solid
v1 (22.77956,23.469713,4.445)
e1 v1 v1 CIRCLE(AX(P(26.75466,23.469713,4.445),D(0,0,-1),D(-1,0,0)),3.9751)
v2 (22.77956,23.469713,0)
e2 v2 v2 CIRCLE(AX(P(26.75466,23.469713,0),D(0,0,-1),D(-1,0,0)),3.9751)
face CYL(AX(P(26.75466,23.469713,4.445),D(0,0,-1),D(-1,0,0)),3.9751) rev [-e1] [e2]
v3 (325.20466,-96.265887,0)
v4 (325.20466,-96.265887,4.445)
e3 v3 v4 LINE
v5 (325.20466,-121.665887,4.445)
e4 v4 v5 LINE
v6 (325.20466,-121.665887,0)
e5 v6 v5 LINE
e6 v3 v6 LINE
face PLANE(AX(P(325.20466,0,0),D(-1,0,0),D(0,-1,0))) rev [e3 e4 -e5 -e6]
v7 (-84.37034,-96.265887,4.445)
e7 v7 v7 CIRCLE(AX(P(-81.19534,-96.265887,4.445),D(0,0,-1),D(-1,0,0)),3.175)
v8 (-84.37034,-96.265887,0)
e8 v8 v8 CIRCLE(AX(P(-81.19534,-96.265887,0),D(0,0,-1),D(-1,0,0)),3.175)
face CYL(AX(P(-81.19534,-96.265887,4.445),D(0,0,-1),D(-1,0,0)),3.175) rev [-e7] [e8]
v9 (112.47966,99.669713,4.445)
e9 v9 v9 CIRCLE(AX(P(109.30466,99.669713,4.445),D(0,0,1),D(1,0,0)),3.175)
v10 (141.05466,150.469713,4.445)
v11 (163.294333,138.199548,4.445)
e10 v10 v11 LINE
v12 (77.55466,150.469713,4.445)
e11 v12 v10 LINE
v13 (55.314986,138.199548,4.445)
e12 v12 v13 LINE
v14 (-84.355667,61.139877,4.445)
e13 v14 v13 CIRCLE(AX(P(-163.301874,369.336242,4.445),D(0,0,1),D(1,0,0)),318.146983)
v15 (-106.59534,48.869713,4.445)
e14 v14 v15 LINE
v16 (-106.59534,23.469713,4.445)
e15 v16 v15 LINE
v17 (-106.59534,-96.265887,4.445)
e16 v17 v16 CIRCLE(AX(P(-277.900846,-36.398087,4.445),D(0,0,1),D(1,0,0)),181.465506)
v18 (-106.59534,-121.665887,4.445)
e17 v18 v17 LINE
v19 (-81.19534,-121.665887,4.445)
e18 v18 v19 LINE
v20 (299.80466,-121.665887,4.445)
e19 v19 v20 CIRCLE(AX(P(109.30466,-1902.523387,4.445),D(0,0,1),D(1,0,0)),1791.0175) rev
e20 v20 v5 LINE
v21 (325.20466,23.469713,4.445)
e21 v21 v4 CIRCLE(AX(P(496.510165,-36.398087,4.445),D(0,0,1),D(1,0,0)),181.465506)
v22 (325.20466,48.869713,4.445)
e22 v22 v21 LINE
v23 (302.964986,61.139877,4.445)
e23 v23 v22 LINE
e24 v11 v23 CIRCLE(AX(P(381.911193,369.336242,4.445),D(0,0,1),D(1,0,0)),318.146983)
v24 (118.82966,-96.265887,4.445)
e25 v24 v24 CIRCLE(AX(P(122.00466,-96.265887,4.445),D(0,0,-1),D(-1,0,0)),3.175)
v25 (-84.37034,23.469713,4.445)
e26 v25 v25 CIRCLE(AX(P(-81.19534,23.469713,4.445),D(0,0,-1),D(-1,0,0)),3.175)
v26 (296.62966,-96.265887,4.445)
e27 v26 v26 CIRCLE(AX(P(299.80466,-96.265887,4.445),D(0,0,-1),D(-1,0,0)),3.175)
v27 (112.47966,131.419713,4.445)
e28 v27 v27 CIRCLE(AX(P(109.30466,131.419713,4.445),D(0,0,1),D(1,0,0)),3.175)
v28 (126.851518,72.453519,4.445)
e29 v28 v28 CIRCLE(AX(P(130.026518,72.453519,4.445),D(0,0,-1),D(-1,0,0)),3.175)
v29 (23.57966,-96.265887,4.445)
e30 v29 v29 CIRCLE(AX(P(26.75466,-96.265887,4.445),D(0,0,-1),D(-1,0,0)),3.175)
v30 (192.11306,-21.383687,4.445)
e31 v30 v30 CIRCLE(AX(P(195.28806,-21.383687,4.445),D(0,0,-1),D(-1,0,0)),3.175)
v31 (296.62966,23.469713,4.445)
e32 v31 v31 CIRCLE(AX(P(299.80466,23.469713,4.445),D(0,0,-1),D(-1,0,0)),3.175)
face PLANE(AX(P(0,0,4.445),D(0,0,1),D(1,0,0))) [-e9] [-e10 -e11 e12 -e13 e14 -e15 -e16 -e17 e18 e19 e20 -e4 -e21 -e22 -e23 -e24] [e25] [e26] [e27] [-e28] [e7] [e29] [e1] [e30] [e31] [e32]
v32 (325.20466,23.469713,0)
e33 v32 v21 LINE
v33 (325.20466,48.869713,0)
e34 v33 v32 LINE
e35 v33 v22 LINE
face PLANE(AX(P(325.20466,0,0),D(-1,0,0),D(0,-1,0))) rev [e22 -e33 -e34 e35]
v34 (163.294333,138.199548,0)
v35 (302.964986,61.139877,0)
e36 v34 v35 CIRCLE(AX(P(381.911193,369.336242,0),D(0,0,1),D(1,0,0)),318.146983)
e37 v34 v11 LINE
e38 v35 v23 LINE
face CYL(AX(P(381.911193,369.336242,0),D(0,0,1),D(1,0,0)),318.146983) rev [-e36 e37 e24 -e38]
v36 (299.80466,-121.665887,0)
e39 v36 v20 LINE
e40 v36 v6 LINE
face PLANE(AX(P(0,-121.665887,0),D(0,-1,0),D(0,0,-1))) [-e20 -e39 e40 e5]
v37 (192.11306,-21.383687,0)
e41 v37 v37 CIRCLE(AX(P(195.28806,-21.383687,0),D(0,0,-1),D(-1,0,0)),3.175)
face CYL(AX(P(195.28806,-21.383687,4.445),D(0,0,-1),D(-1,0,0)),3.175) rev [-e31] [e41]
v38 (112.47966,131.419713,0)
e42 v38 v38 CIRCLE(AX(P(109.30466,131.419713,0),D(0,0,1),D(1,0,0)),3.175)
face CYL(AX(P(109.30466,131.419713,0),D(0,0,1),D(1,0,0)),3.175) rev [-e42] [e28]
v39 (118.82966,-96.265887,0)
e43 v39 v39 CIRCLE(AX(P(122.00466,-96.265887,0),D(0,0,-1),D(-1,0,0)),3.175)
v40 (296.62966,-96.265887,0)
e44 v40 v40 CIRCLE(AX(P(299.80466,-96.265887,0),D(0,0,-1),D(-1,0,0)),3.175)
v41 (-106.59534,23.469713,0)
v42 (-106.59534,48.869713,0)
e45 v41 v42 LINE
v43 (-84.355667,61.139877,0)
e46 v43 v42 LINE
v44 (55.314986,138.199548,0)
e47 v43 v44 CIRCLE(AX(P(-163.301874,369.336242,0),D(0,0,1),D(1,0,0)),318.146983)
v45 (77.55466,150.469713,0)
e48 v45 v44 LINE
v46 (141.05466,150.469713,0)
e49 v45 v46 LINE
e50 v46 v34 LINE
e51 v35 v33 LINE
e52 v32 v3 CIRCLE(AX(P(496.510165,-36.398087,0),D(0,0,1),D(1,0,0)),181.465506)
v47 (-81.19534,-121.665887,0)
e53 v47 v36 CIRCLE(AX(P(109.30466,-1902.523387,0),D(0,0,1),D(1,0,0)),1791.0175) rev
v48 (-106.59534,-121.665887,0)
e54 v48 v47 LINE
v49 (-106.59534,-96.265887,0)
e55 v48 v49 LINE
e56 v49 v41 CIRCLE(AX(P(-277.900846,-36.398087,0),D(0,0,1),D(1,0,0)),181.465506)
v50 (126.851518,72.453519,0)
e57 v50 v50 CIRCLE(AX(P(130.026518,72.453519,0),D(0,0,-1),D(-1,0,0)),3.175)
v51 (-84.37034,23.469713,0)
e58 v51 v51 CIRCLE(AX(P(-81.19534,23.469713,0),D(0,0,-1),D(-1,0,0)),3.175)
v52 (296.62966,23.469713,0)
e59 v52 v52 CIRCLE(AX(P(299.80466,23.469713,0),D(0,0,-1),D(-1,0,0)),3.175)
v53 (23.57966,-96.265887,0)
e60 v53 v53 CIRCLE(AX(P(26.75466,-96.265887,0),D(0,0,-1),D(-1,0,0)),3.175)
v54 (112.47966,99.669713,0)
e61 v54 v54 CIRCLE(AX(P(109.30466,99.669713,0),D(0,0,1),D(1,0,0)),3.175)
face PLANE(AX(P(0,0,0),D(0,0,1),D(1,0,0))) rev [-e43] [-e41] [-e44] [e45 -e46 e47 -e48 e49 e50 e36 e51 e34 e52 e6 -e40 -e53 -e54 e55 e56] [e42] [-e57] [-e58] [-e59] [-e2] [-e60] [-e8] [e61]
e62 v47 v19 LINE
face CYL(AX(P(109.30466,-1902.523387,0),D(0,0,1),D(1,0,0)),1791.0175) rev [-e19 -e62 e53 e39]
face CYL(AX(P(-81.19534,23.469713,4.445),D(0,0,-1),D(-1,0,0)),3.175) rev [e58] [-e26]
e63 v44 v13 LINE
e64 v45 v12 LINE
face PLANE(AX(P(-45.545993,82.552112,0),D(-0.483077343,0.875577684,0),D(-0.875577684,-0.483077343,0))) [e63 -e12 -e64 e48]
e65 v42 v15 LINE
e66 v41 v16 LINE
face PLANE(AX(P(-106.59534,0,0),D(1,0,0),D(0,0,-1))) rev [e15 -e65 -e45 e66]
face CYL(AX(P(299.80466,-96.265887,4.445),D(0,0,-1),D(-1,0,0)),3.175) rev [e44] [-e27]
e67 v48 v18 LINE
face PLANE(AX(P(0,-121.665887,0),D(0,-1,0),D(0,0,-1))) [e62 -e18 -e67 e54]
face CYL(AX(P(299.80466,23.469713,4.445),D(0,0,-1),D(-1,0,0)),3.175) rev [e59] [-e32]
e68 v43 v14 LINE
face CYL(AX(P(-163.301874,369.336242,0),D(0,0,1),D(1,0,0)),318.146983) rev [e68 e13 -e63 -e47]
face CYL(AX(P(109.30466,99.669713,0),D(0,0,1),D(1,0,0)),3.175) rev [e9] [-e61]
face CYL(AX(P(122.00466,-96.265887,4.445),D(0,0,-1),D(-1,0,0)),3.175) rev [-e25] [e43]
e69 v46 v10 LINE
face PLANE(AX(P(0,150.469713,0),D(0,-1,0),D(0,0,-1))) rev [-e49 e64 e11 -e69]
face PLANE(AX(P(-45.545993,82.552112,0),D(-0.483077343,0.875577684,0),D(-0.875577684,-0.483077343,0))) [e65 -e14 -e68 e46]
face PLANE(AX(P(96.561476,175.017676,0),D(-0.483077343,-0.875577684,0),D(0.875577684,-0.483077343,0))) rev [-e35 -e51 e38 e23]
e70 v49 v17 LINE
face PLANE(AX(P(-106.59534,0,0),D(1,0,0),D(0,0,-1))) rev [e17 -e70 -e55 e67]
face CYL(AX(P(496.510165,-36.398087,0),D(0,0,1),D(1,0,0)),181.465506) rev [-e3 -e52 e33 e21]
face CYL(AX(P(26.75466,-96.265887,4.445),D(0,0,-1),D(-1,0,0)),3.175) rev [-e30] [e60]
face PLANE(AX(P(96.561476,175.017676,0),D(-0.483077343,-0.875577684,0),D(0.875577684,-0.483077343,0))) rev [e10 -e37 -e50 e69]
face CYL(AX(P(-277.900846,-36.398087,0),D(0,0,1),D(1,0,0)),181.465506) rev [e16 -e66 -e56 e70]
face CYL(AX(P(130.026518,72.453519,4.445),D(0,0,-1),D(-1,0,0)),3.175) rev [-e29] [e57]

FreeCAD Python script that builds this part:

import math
import FreeCAD as App
import Part
import Sketcher

V = App.Vector
Q = App.Units.Quantity


def add_polygon(sketch, points):
    """Adds a closed chain of lines whose ends are joined by coincident constraints."""
    first, n = sketch.GeometryCount, len(points)
    for a, b in zip(points, points[1:] + points[:1]):
        sketch.addGeometry(Part.LineSegment(App.Vector(*a, 0), App.Vector(*b, 0)), False)
    for i in range(n):
        sketch.addConstraint(Sketcher.Constraint("Coincident", first + i, 2, first + (i + 1) % n, 1))

doc = App.newDocument("Part")
body = doc.addObject("PartDesign::Body", "Body")

# Sketch on XY plane
sketch1 = doc.addObject("Sketcher::SketchObject", "Sketch")
body.addObject(sketch1)
sketch1.AttachmentSupport = (doc.XY_Plane, [""])
sketch1.MapMode = "FlatFace"
add_polygon(sketch1, [(-233, 316), (-233, -319), (402, -319), (402, 316)])  # lines 0-3
sketch1.addConstraint(Sketcher.Constraint("Vertical", 0))
sketch1.addConstraint(Sketcher.Constraint("Horizontal", 1))
sketch1.addConstraint(Sketcher.Constraint("Vertical", 2))
sketch1.addConstraint(Sketcher.Constraint("Horizontal", 3))
sketch1.addConstraint(Sketcher.Constraint("Equal", 3, 0))
sketch1.addConstraint(Sketcher.Constraint("DistanceX", 1, 1, 1, 2, Q("25 in")))
sketch1.addConstraint(Sketcher.Constraint("DistanceX", 0, 2, -1, 1, Q("233.118252 mm")))
sketch1.addConstraint(Sketcher.Constraint("DistanceY", 0, 2, -1, 1, Q("319.471086 mm")))
pad1 = doc.addObject("PartDesign::Pad", "Pad")
body.addObject(pad1)
pad1.Profile = sketch1
pad1.Length = Q("0.175 in")

# Sketch on XY plane
sketch2 = doc.addObject("Sketcher::SketchObject", "Sketch001")
body.addObject(sketch2)
sketch2.AttachmentSupport = (doc.XY_Plane, [""])
sketch2.MapMode = "FlatFace"
sketch2.addGeometry(Part.Circle(V(130, 72.5, 0), V(0, 0, 1), 3.2), False)
sketch2.addGeometry(Part.Circle(V(195.3, -21.4, 0), V(0, 0, 1), 3.2), False)
sketch2.addGeometry(Part.Circle(V(122, -96.3, 0), V(0, 0, 1), 3.2), False)
sketch2.addGeometry(Part.Circle(V(26.8, -96.3, 0), V(0, 0, 1), 3.2), False)
sketch2.addGeometry(Part.Circle(V(26.8, 23.5, 0), V(0, 0, 1), 4), False)
sketch2.addGeometry(Part.Circle(V(-81.2, -96.3, 0), V(0, 0, 1), 3.2), False)
sketch2.addGeometry(Part.Circle(V(299.8, -96.3, 0), V(0, 0, 1), 3.2), False)
sketch2.addGeometry(Part.Circle(V(-81.2, 23.5, 0), V(0, 0, 1), 3.2), False)
sketch2.addGeometry(Part.Circle(V(299.8, 23.5, 0), V(0, 0, 1), 3.2), False)
sketch2.addConstraint(Sketcher.Constraint("Equal", 0, 1))
sketch2.addConstraint(Sketcher.Constraint("Equal", 1, 2))
sketch2.addConstraint(Sketcher.Constraint("Equal", 2, 3))
sketch2.addConstraint(Sketcher.Constraint("Equal", 3, 5))
sketch2.addConstraint(Sketcher.Constraint("Equal", 5, 6))
sketch2.addConstraint(Sketcher.Constraint("Equal", 6, 7))
sketch2.addConstraint(Sketcher.Constraint("Equal", 7, 8))
sketch2.addConstraint(Sketcher.Constraint("Horizontal", 2, 3, 3, 3))
sketch2.addConstraint(Sketcher.Constraint("Horizontal", 3, 3, 5, 3))
sketch2.addConstraint(Sketcher.Constraint("Horizontal", 5, 3, 6, 3))
sketch2.addConstraint(Sketcher.Constraint("Horizontal", 4, 3, 7, 3))
sketch2.addConstraint(Sketcher.Constraint("Horizontal", 7, 3, 8, 3))
sketch2.addConstraint(Sketcher.Constraint("Vertical", 3, 3, 4, 3))
sketch2.addConstraint(Sketcher.Constraint("Vertical", 5, 3, 7, 3))
sketch2.addConstraint(Sketcher.Constraint("Vertical", 6, 3, 8, 3))
sketch2.addConstraint(Sketcher.Constraint("Diameter", 0, Q("0.25 in")))
sketch2.addConstraint(Sketcher.Constraint("Diameter", 4, Q("0.313 in")))
sketch2.addConstraint(Sketcher.Constraint("DistanceX", 5, 3, 2, 3, Q("8 in")))
sketch2.addConstraint(Sketcher.Constraint("DistanceX", 2, 3, 6, 3, Q("7 in")))
sketch2.addConstraint(Sketcher.Constraint("DistanceX", 3, 3, 2, 3, Q("3.75 in")))
sketch2.addConstraint(Sketcher.Constraint("DistanceY", 3, 3, 4, 3, Q("4.714 in")))
sketch2.addConstraint(Sketcher.Constraint("DistanceX", 2, 3, 1, 3, Q("73.2834 mm")))
sketch2.addConstraint(Sketcher.Constraint("DistanceY", 2, 3, 1, 3, Q("74.8822 mm")))
sketch2.addConstraint(Sketcher.Constraint("DistanceX", -1, 1, 0, 3, Q("130.026518 mm")))
sketch2.addConstraint(Sketcher.Constraint("DistanceY", -1, 1, 0, 3, Q("72.453519 mm")))
sketch2.addConstraint(Sketcher.Constraint("DistanceX", -1, 1, 1, 3, Q("195.28806 mm")))
sketch2.addConstraint(Sketcher.Constraint("DistanceY", 1, 3, -1, 1, Q("21.383687 mm")))
pocket1 = doc.addObject("PartDesign::Pocket", "Pocket")
body.addObject(pocket1)
pocket1.Profile = sketch2
pocket1.Type = "ThroughAll"
pocket1.Reversed = True

# Sketch on XY plane
sketch3 = doc.addObject("Sketcher::SketchObject", "Sketch002")
body.addObject(sketch3)
sketch3.AttachmentSupport = (doc.XY_Plane, [""])
sketch3.MapMode = "FlatFace"
sketch3.AttachmentOffset = App.Placement(V(0, 0, 0.175 * 25.4), App.Rotation())
add_polygon(sketch3, [(-233, 316), (-233, -319), (402, -319), (402, 316)])  # lines 0-3
add_polygon(sketch3, [(325, -122), (-107, -122), (-107, 49), (78, 150), (141, 150), (325, 49)])  # lines 4-9
sketch3.addConstraint(Sketcher.Constraint("Vertical", 0))
sketch3.addConstraint(Sketcher.Constraint("Horizontal", 1))
sketch3.addConstraint(Sketcher.Constraint("Vertical", 2))
sketch3.addConstraint(Sketcher.Constraint("Horizontal", 3))
sketch3.addConstraint(Sketcher.Constraint("Horizontal", 4))
sketch3.addConstraint(Sketcher.Constraint("Vertical", 5))
sketch3.addConstraint(Sketcher.Constraint("Horizontal", 7))
sketch3.addConstraint(Sketcher.Constraint("Vertical", 9))
sketch3.addConstraint(Sketcher.Constraint("Horizontal", 5, 2, 8, 2))
sketch3.addConstraint(Sketcher.Constraint("Equal", 3, 0))
sketch3.addConstraint(Sketcher.Constraint("Equal", 6, 8))
sketch3.addConstraint(Sketcher.Constraint("DistanceX", 1, 1, 1, 2, Q("25 in")))
sketch3.addConstraint(Sketcher.Constraint("DistanceX", 4, 2, 4, 1, Q("17 in")))
sketch3.addConstraint(Sketcher.Constraint("DistanceX", 7, 1, 7, 2, Q("2.5 in")))
sketch3.addConstraint(Sketcher.Constraint("DistanceY", 5, 2, 6, 2, Q("4 in")))
sketch3.addConstraint(Sketcher.Constraint("DistanceY", 5, 1, 5, 2, Q("6.714 in")))
sketch3.addConstraint(Sketcher.Constraint("DistanceY", 0, 2, 4, 2, Q("197.805199 mm")))
sketch3.addConstraint(Sketcher.Constraint("DistanceX", 0, 2, -1, 1, Q("233.118252 mm")))
sketch3.addConstraint(Sketcher.Constraint("DistanceX", 4, 2, -1, 1, Q("106.59534 mm")))
sketch3.addConstraint(Sketcher.Constraint("DistanceY", 0, 2, -1, 1, Q("319.471086 mm")))
pocket2 = doc.addObject("PartDesign::Pocket", "Pocket001")
body.addObject(pocket2)
pocket2.Profile = sketch3
pocket2.Type = "ThroughAll"

# Sketch on XY plane
sketch4 = doc.addObject("Sketcher::SketchObject", "Sketch003")
body.addObject(sketch4)
sketch4.AttachmentSupport = (doc.XY_Plane, [""])
sketch4.MapMode = "FlatFace"
sketch4.AttachmentOffset = App.Placement(V(0, 0, 0.175 * 25.4), App.Rotation())
sketch4.addGeometry(Part.ArcOfCircle(Part.Circle(V(-278, -36, 0), V(0, 0, 1), 181), math.radians(-19), math.radians(19)), False)
sketch4.addGeometry(Part.LineSegment(V(-107, 23, 0), V(-107, -96, 0)), False)
sketch4.addGeometry(Part.ArcOfCircle(Part.Circle(V(109, -1903, 0), V(0, 0, 1), 1791), math.radians(83.89), math.radians(96.11)), False)
sketch4.addGeometry(Part.LineSegment(V(-81, -122, 0), V(300, -122, 0)), False)
sketch4.addGeometry(Part.ArcOfCircle(Part.Circle(V(497, -36, 0), V(0, 0, 1), 181), math.radians(161), math.radians(199)), False)
sketch4.addGeometry(Part.LineSegment(V(325, -96, 0), V(325, 23, 0)), False)
sketch4.addGeometry(Part.LineSegment(V(55, 138, 0), V(-84, 61, 0)), False)
sketch4.addGeometry(Part.ArcOfCircle(Part.Circle(V(-163, 369, 0), V(0, 0, 1), 318), math.radians(-76), math.radians(-47)), False)
sketch4.addGeometry(Part.LineSegment(V(303, 61, 0), V(163, 138, 0)), False)
sketch4.addGeometry(Part.ArcOfCircle(Part.Circle(V(382, 369, 0), V(0, 0, 1), 318), math.radians(-133), math.radians(-104)), False)
sketch4.addConstraint(Sketcher.Constraint("Coincident", 0, 1, 1, 2))
sketch4.addConstraint(Sketcher.Constraint("Coincident", 1, 1, 0, 2))
sketch4.addConstraint(Sketcher.Constraint("Coincident", 2, 1, 3, 2))
sketch4.addConstraint(Sketcher.Constraint("Coincident", 3, 1, 2, 2))
sketch4.addConstraint(Sketcher.Constraint("Coincident", 4, 1, 5, 2))
sketch4.addConstraint(Sketcher.Constraint("Coincident", 5, 1, 4, 2))
sketch4.addConstraint(Sketcher.Constraint("Coincident", 6, 1, 7, 2))
sketch4.addConstraint(Sketcher.Constraint("Coincident", 7, 1, 6, 2))
sketch4.addConstraint(Sketcher.Constraint("Coincident", 8, 1, 9, 2))
sketch4.addConstraint(Sketcher.Constraint("Coincident", 9, 1, 8, 2))
sketch4.addConstraint(Sketcher.Constraint("Vertical", 1))
sketch4.addConstraint(Sketcher.Constraint("Horizontal", 3))
sketch4.addConstraint(Sketcher.Constraint("Vertical", 5))
sketch4.addConstraint(Sketcher.Constraint("Equal", 0, 4))
sketch4.addConstraint(Sketcher.Constraint("Equal", 7, 9))
sketch4.addConstraint(Sketcher.Constraint("Horizontal", 0, 3, 4, 3))
sketch4.addConstraint(Sketcher.Constraint("Horizontal", 7, 3, 9, 3))
sketch4.addConstraint(Sketcher.Constraint("Horizontal", 1, 1, 4, 1))
sketch4.addConstraint(Sketcher.Constraint("Horizontal", 7, 1, 8, 1))
sketch4.addConstraint(Sketcher.Constraint("Horizontal", 6, 1, 9, 1))
sketch4.addConstraint(Sketcher.Constraint("DistanceX", 3, 1, 3, 2, Q("15 in")))
sketch4.addConstraint(Sketcher.Constraint("DistanceY", 2, 1, 0, 1, Q("1 in")))
sketch4.addConstraint(Sketcher.Constraint("DistanceX", 0, 1, 3, 1, Q("1 in")))
sketch4.addConstraint(Sketcher.Constraint("DistanceX", 3, 1, 4, 1, Q("16 in")))
sketch4.addConstraint(Sketcher.Constraint("Radius", 2, Q("70.5125 in")))
sketch4.addConstraint(Sketcher.Constraint("DistanceY", 1, 2, 1, 1, Q("4.714 in")))
sketch4.addConstraint(Sketcher.Constraint("DistanceX", 6, 1, 8, 1, Q("9.75 in")))
sketch4.addConstraint(Sketcher.Constraint("Radius", 0, Q("181.465506 mm")))
sketch4.addConstraint(Sketcher.Constraint("Radius", 7, Q("318.146983 mm")))
sketch4.addConstraint(Sketcher.Constraint("Distance", 6, Q("159.518289 mm")))
sketch4.addConstraint(Sketcher.Constraint("DistanceX", -1, 1, 2, 3, Q("109.30466 mm")))
sketch4.addConstraint(Sketcher.Constraint("DistanceY", -1, 1, 6, 1, Q("138.199548 mm")))
sketch4.addConstraint(Sketcher.Constraint("DistanceY", 0, 3, 7, 3, Q("405.734329 mm")))
sketch4.addConstraint(Sketcher.Constraint("DistanceX", 7, 3, 4, 3, Q("659.812039 mm")))
sketch4.addConstraint(Sketcher.Constraint("DistanceX", 0, 3, 9, 3, Q("659.812039 mm")))
pocket3 = doc.addObject("PartDesign::Pocket", "Pocket002")
body.addObject(pocket3)
pocket3.Profile = sketch4
pocket3.Type = "ThroughAll"

# Sketch on XY plane
sketch5 = doc.addObject("Sketcher::SketchObject", "Sketch004")
body.addObject(sketch5)
sketch5.AttachmentSupport = (doc.XY_Plane, [""])
sketch5.MapMode = "FlatFace"
sketch5.AttachmentOffset = App.Placement(V(0, 0, 0.175 * 25.4), App.Rotation())
sketch5.addGeometry(Part.Circle(V(109.3, 131.4, 0), V(0, 0, 1), 3.2), False)
sketch5.addGeometry(Part.Circle(V(109.3, 99.7, 0), V(0, 0, 1), 3.2), False)
sketch5.addConstraint(Sketcher.Constraint("Equal", 0, 1))
sketch5.addConstraint(Sketcher.Constraint("Vertical", 0, 3, 1, 3))
sketch5.addConstraint(Sketcher.Constraint("Diameter", 0, Q("0.25 in")))
sketch5.addConstraint(Sketcher.Constraint("DistanceY", 1, 3, 0, 3, Q("1.25 in")))
sketch5.addConstraint(Sketcher.Constraint("DistanceX", -1, 1, 0, 3, Q("109.30466 mm")))
sketch5.addConstraint(Sketcher.Constraint("DistanceY", -1, 1, 0, 3, Q("131.419713 mm")))
pocket4 = doc.addObject("PartDesign::Pocket", "Pocket003")
body.addObject(pocket4)
pocket4.Profile = sketch5
pocket4.Type = "ThroughAll"

doc.recompute()
